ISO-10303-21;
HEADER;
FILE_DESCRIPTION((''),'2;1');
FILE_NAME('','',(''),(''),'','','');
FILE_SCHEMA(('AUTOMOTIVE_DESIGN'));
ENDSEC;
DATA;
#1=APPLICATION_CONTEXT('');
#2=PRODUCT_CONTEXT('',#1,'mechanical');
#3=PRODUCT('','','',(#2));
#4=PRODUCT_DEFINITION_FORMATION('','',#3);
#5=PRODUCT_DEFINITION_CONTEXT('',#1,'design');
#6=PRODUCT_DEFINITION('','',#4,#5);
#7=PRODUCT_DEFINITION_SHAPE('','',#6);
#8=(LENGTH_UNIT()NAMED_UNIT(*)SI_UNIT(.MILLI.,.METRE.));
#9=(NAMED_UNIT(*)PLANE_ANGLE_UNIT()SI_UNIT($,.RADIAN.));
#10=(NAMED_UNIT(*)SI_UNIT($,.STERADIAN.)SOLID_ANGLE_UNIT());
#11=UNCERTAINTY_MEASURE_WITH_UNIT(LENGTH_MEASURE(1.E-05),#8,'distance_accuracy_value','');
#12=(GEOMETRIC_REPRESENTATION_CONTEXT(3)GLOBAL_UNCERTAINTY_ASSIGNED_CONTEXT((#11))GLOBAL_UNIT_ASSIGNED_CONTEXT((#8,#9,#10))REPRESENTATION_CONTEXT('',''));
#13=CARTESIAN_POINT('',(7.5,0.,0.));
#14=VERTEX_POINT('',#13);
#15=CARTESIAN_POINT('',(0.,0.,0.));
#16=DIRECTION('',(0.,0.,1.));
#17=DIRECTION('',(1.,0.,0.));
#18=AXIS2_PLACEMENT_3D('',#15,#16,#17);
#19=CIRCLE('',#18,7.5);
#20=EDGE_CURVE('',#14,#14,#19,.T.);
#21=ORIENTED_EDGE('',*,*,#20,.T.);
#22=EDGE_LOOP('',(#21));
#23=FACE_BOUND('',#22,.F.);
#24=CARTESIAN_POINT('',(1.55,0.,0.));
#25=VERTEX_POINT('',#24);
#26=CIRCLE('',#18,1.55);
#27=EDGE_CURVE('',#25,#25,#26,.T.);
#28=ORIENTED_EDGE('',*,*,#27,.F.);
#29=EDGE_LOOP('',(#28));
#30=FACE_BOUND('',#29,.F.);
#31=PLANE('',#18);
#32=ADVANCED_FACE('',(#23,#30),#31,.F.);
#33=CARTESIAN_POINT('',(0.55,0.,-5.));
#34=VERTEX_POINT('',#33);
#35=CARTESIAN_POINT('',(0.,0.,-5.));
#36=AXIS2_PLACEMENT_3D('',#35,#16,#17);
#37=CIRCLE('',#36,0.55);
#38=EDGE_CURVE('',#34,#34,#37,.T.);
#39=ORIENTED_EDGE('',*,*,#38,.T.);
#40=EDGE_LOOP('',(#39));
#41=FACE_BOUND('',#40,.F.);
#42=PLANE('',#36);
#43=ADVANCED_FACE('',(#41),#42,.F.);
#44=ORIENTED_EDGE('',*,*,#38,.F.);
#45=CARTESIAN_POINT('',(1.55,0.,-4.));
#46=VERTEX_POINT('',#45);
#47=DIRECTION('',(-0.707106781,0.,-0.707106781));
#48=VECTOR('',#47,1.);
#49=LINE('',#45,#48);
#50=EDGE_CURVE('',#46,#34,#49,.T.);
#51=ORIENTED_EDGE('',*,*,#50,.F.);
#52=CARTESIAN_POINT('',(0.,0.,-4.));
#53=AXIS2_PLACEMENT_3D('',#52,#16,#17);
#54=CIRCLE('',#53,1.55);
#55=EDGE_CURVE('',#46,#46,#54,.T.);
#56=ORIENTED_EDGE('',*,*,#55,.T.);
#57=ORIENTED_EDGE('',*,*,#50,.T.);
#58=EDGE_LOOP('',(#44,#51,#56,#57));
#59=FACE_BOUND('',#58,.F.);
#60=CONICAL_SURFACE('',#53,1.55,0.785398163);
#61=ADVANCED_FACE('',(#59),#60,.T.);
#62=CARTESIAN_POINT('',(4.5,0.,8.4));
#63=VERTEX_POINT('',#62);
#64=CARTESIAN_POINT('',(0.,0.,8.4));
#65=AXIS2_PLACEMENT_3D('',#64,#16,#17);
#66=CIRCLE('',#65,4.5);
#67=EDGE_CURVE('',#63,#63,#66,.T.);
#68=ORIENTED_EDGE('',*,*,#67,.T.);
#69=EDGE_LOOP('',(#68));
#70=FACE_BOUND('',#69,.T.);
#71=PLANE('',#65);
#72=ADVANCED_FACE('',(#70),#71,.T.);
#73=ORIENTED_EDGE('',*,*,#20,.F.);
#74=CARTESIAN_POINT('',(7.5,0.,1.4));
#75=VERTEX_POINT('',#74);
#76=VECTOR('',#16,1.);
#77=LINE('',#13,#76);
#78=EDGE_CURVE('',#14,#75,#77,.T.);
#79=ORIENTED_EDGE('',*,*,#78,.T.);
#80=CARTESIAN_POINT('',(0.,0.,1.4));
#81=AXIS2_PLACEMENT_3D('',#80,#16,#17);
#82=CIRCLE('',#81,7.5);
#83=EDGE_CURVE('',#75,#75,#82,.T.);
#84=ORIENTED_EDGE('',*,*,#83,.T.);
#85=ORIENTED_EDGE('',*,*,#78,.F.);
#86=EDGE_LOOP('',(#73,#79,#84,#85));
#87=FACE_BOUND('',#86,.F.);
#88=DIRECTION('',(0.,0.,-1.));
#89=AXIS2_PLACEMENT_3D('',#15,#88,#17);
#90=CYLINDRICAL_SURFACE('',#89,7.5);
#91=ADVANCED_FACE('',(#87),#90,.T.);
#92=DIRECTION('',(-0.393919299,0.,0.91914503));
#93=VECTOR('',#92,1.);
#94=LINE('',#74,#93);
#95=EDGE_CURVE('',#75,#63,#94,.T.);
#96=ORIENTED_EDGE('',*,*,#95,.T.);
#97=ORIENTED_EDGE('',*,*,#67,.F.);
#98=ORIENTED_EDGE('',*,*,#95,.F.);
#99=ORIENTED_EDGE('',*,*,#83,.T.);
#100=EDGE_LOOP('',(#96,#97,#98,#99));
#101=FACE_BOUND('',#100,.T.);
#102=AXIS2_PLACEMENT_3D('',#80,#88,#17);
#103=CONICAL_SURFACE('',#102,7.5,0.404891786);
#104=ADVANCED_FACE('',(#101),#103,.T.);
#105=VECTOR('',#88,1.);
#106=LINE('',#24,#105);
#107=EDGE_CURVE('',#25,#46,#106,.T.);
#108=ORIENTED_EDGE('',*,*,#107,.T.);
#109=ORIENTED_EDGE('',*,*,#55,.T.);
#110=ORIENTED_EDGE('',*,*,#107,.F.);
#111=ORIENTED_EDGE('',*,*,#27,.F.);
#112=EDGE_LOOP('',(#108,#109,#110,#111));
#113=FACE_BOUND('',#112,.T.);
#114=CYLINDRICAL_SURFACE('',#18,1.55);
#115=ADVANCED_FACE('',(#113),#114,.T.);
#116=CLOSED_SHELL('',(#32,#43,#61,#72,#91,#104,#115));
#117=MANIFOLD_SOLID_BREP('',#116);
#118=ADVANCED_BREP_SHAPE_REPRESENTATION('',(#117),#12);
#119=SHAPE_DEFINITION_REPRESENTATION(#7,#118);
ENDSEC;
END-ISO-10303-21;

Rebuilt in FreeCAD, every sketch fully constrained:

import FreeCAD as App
import Part
import Sketcher
from FreeCAD import Vector


def edges_at(feature, points):
    """Names of the edges that pass closest to the given points."""
    edges = feature.Shape.Edges
    near = lambda p: min(range(len(edges)), key=lambda i: edges[i].distToShape(Part.Vertex(*p))[0])
    return sorted({f"Edge{near(p) + 1}" for p in points})

doc = App.newDocument("Part")
body = doc.addObject("PartDesign::Body", "Body")

sketch1 = body.newObject("Sketcher::SketchObject", "Sketch")
sketch1.AttachmentSupport = (doc.getObject("XY_Plane"), [""])
sketch1.MapMode = "FlatFace"
sketch1.addGeometry(Part.Circle(Vector(0, 0, 0), Vector(0, 0, 1), 1.6), False)
sketch1.addConstraint([
    Sketcher.Constraint("Coincident", 0, 3, -1, 1),
    Sketcher.Constraint("Diameter", 0, 3.1),
])
pad1 = body.newObject("PartDesign::Pad", "Pad")
pad1.Profile = sketch1
pad1.Length = 5
pad1.Reversed = True

sketch2 = body.newObject("Sketcher::SketchObject", "Sketch001")
sketch2.AttachmentSupport = (doc.getObject("XY_Plane"), [""])
sketch2.MapMode = "FlatFace"
sketch2.addGeometry(Part.Circle(Vector(0, 0, 0), Vector(0, 0, 1), 8), False)
sketch2.addConstraint([
    Sketcher.Constraint("Coincident", 0, 3, -1, 1),
    Sketcher.Constraint("Diameter", 0, 15.0),
])
pad2 = body.newObject("PartDesign::Pad", "Pad001")
pad2.Profile = sketch2
pad2.Length = 8.4
doc.recompute()

chamfer = body.newObject("PartDesign::Chamfer", "Chamfer")
chamfer.Base = (pad2, edges_at(pad2, [(-1.55, 0, -5)]))
chamfer.Size = 1
doc.recompute()

chamfer2 = body.newObject("PartDesign::Chamfer", "Chamfer001")
chamfer2.Base = (chamfer, edges_at(chamfer, [(-7.5, 0, 8.4)]))
chamfer2.ChamferType = "Two distances"
chamfer2.Size = 7
chamfer2.Size2 = 3

doc.recompute()
